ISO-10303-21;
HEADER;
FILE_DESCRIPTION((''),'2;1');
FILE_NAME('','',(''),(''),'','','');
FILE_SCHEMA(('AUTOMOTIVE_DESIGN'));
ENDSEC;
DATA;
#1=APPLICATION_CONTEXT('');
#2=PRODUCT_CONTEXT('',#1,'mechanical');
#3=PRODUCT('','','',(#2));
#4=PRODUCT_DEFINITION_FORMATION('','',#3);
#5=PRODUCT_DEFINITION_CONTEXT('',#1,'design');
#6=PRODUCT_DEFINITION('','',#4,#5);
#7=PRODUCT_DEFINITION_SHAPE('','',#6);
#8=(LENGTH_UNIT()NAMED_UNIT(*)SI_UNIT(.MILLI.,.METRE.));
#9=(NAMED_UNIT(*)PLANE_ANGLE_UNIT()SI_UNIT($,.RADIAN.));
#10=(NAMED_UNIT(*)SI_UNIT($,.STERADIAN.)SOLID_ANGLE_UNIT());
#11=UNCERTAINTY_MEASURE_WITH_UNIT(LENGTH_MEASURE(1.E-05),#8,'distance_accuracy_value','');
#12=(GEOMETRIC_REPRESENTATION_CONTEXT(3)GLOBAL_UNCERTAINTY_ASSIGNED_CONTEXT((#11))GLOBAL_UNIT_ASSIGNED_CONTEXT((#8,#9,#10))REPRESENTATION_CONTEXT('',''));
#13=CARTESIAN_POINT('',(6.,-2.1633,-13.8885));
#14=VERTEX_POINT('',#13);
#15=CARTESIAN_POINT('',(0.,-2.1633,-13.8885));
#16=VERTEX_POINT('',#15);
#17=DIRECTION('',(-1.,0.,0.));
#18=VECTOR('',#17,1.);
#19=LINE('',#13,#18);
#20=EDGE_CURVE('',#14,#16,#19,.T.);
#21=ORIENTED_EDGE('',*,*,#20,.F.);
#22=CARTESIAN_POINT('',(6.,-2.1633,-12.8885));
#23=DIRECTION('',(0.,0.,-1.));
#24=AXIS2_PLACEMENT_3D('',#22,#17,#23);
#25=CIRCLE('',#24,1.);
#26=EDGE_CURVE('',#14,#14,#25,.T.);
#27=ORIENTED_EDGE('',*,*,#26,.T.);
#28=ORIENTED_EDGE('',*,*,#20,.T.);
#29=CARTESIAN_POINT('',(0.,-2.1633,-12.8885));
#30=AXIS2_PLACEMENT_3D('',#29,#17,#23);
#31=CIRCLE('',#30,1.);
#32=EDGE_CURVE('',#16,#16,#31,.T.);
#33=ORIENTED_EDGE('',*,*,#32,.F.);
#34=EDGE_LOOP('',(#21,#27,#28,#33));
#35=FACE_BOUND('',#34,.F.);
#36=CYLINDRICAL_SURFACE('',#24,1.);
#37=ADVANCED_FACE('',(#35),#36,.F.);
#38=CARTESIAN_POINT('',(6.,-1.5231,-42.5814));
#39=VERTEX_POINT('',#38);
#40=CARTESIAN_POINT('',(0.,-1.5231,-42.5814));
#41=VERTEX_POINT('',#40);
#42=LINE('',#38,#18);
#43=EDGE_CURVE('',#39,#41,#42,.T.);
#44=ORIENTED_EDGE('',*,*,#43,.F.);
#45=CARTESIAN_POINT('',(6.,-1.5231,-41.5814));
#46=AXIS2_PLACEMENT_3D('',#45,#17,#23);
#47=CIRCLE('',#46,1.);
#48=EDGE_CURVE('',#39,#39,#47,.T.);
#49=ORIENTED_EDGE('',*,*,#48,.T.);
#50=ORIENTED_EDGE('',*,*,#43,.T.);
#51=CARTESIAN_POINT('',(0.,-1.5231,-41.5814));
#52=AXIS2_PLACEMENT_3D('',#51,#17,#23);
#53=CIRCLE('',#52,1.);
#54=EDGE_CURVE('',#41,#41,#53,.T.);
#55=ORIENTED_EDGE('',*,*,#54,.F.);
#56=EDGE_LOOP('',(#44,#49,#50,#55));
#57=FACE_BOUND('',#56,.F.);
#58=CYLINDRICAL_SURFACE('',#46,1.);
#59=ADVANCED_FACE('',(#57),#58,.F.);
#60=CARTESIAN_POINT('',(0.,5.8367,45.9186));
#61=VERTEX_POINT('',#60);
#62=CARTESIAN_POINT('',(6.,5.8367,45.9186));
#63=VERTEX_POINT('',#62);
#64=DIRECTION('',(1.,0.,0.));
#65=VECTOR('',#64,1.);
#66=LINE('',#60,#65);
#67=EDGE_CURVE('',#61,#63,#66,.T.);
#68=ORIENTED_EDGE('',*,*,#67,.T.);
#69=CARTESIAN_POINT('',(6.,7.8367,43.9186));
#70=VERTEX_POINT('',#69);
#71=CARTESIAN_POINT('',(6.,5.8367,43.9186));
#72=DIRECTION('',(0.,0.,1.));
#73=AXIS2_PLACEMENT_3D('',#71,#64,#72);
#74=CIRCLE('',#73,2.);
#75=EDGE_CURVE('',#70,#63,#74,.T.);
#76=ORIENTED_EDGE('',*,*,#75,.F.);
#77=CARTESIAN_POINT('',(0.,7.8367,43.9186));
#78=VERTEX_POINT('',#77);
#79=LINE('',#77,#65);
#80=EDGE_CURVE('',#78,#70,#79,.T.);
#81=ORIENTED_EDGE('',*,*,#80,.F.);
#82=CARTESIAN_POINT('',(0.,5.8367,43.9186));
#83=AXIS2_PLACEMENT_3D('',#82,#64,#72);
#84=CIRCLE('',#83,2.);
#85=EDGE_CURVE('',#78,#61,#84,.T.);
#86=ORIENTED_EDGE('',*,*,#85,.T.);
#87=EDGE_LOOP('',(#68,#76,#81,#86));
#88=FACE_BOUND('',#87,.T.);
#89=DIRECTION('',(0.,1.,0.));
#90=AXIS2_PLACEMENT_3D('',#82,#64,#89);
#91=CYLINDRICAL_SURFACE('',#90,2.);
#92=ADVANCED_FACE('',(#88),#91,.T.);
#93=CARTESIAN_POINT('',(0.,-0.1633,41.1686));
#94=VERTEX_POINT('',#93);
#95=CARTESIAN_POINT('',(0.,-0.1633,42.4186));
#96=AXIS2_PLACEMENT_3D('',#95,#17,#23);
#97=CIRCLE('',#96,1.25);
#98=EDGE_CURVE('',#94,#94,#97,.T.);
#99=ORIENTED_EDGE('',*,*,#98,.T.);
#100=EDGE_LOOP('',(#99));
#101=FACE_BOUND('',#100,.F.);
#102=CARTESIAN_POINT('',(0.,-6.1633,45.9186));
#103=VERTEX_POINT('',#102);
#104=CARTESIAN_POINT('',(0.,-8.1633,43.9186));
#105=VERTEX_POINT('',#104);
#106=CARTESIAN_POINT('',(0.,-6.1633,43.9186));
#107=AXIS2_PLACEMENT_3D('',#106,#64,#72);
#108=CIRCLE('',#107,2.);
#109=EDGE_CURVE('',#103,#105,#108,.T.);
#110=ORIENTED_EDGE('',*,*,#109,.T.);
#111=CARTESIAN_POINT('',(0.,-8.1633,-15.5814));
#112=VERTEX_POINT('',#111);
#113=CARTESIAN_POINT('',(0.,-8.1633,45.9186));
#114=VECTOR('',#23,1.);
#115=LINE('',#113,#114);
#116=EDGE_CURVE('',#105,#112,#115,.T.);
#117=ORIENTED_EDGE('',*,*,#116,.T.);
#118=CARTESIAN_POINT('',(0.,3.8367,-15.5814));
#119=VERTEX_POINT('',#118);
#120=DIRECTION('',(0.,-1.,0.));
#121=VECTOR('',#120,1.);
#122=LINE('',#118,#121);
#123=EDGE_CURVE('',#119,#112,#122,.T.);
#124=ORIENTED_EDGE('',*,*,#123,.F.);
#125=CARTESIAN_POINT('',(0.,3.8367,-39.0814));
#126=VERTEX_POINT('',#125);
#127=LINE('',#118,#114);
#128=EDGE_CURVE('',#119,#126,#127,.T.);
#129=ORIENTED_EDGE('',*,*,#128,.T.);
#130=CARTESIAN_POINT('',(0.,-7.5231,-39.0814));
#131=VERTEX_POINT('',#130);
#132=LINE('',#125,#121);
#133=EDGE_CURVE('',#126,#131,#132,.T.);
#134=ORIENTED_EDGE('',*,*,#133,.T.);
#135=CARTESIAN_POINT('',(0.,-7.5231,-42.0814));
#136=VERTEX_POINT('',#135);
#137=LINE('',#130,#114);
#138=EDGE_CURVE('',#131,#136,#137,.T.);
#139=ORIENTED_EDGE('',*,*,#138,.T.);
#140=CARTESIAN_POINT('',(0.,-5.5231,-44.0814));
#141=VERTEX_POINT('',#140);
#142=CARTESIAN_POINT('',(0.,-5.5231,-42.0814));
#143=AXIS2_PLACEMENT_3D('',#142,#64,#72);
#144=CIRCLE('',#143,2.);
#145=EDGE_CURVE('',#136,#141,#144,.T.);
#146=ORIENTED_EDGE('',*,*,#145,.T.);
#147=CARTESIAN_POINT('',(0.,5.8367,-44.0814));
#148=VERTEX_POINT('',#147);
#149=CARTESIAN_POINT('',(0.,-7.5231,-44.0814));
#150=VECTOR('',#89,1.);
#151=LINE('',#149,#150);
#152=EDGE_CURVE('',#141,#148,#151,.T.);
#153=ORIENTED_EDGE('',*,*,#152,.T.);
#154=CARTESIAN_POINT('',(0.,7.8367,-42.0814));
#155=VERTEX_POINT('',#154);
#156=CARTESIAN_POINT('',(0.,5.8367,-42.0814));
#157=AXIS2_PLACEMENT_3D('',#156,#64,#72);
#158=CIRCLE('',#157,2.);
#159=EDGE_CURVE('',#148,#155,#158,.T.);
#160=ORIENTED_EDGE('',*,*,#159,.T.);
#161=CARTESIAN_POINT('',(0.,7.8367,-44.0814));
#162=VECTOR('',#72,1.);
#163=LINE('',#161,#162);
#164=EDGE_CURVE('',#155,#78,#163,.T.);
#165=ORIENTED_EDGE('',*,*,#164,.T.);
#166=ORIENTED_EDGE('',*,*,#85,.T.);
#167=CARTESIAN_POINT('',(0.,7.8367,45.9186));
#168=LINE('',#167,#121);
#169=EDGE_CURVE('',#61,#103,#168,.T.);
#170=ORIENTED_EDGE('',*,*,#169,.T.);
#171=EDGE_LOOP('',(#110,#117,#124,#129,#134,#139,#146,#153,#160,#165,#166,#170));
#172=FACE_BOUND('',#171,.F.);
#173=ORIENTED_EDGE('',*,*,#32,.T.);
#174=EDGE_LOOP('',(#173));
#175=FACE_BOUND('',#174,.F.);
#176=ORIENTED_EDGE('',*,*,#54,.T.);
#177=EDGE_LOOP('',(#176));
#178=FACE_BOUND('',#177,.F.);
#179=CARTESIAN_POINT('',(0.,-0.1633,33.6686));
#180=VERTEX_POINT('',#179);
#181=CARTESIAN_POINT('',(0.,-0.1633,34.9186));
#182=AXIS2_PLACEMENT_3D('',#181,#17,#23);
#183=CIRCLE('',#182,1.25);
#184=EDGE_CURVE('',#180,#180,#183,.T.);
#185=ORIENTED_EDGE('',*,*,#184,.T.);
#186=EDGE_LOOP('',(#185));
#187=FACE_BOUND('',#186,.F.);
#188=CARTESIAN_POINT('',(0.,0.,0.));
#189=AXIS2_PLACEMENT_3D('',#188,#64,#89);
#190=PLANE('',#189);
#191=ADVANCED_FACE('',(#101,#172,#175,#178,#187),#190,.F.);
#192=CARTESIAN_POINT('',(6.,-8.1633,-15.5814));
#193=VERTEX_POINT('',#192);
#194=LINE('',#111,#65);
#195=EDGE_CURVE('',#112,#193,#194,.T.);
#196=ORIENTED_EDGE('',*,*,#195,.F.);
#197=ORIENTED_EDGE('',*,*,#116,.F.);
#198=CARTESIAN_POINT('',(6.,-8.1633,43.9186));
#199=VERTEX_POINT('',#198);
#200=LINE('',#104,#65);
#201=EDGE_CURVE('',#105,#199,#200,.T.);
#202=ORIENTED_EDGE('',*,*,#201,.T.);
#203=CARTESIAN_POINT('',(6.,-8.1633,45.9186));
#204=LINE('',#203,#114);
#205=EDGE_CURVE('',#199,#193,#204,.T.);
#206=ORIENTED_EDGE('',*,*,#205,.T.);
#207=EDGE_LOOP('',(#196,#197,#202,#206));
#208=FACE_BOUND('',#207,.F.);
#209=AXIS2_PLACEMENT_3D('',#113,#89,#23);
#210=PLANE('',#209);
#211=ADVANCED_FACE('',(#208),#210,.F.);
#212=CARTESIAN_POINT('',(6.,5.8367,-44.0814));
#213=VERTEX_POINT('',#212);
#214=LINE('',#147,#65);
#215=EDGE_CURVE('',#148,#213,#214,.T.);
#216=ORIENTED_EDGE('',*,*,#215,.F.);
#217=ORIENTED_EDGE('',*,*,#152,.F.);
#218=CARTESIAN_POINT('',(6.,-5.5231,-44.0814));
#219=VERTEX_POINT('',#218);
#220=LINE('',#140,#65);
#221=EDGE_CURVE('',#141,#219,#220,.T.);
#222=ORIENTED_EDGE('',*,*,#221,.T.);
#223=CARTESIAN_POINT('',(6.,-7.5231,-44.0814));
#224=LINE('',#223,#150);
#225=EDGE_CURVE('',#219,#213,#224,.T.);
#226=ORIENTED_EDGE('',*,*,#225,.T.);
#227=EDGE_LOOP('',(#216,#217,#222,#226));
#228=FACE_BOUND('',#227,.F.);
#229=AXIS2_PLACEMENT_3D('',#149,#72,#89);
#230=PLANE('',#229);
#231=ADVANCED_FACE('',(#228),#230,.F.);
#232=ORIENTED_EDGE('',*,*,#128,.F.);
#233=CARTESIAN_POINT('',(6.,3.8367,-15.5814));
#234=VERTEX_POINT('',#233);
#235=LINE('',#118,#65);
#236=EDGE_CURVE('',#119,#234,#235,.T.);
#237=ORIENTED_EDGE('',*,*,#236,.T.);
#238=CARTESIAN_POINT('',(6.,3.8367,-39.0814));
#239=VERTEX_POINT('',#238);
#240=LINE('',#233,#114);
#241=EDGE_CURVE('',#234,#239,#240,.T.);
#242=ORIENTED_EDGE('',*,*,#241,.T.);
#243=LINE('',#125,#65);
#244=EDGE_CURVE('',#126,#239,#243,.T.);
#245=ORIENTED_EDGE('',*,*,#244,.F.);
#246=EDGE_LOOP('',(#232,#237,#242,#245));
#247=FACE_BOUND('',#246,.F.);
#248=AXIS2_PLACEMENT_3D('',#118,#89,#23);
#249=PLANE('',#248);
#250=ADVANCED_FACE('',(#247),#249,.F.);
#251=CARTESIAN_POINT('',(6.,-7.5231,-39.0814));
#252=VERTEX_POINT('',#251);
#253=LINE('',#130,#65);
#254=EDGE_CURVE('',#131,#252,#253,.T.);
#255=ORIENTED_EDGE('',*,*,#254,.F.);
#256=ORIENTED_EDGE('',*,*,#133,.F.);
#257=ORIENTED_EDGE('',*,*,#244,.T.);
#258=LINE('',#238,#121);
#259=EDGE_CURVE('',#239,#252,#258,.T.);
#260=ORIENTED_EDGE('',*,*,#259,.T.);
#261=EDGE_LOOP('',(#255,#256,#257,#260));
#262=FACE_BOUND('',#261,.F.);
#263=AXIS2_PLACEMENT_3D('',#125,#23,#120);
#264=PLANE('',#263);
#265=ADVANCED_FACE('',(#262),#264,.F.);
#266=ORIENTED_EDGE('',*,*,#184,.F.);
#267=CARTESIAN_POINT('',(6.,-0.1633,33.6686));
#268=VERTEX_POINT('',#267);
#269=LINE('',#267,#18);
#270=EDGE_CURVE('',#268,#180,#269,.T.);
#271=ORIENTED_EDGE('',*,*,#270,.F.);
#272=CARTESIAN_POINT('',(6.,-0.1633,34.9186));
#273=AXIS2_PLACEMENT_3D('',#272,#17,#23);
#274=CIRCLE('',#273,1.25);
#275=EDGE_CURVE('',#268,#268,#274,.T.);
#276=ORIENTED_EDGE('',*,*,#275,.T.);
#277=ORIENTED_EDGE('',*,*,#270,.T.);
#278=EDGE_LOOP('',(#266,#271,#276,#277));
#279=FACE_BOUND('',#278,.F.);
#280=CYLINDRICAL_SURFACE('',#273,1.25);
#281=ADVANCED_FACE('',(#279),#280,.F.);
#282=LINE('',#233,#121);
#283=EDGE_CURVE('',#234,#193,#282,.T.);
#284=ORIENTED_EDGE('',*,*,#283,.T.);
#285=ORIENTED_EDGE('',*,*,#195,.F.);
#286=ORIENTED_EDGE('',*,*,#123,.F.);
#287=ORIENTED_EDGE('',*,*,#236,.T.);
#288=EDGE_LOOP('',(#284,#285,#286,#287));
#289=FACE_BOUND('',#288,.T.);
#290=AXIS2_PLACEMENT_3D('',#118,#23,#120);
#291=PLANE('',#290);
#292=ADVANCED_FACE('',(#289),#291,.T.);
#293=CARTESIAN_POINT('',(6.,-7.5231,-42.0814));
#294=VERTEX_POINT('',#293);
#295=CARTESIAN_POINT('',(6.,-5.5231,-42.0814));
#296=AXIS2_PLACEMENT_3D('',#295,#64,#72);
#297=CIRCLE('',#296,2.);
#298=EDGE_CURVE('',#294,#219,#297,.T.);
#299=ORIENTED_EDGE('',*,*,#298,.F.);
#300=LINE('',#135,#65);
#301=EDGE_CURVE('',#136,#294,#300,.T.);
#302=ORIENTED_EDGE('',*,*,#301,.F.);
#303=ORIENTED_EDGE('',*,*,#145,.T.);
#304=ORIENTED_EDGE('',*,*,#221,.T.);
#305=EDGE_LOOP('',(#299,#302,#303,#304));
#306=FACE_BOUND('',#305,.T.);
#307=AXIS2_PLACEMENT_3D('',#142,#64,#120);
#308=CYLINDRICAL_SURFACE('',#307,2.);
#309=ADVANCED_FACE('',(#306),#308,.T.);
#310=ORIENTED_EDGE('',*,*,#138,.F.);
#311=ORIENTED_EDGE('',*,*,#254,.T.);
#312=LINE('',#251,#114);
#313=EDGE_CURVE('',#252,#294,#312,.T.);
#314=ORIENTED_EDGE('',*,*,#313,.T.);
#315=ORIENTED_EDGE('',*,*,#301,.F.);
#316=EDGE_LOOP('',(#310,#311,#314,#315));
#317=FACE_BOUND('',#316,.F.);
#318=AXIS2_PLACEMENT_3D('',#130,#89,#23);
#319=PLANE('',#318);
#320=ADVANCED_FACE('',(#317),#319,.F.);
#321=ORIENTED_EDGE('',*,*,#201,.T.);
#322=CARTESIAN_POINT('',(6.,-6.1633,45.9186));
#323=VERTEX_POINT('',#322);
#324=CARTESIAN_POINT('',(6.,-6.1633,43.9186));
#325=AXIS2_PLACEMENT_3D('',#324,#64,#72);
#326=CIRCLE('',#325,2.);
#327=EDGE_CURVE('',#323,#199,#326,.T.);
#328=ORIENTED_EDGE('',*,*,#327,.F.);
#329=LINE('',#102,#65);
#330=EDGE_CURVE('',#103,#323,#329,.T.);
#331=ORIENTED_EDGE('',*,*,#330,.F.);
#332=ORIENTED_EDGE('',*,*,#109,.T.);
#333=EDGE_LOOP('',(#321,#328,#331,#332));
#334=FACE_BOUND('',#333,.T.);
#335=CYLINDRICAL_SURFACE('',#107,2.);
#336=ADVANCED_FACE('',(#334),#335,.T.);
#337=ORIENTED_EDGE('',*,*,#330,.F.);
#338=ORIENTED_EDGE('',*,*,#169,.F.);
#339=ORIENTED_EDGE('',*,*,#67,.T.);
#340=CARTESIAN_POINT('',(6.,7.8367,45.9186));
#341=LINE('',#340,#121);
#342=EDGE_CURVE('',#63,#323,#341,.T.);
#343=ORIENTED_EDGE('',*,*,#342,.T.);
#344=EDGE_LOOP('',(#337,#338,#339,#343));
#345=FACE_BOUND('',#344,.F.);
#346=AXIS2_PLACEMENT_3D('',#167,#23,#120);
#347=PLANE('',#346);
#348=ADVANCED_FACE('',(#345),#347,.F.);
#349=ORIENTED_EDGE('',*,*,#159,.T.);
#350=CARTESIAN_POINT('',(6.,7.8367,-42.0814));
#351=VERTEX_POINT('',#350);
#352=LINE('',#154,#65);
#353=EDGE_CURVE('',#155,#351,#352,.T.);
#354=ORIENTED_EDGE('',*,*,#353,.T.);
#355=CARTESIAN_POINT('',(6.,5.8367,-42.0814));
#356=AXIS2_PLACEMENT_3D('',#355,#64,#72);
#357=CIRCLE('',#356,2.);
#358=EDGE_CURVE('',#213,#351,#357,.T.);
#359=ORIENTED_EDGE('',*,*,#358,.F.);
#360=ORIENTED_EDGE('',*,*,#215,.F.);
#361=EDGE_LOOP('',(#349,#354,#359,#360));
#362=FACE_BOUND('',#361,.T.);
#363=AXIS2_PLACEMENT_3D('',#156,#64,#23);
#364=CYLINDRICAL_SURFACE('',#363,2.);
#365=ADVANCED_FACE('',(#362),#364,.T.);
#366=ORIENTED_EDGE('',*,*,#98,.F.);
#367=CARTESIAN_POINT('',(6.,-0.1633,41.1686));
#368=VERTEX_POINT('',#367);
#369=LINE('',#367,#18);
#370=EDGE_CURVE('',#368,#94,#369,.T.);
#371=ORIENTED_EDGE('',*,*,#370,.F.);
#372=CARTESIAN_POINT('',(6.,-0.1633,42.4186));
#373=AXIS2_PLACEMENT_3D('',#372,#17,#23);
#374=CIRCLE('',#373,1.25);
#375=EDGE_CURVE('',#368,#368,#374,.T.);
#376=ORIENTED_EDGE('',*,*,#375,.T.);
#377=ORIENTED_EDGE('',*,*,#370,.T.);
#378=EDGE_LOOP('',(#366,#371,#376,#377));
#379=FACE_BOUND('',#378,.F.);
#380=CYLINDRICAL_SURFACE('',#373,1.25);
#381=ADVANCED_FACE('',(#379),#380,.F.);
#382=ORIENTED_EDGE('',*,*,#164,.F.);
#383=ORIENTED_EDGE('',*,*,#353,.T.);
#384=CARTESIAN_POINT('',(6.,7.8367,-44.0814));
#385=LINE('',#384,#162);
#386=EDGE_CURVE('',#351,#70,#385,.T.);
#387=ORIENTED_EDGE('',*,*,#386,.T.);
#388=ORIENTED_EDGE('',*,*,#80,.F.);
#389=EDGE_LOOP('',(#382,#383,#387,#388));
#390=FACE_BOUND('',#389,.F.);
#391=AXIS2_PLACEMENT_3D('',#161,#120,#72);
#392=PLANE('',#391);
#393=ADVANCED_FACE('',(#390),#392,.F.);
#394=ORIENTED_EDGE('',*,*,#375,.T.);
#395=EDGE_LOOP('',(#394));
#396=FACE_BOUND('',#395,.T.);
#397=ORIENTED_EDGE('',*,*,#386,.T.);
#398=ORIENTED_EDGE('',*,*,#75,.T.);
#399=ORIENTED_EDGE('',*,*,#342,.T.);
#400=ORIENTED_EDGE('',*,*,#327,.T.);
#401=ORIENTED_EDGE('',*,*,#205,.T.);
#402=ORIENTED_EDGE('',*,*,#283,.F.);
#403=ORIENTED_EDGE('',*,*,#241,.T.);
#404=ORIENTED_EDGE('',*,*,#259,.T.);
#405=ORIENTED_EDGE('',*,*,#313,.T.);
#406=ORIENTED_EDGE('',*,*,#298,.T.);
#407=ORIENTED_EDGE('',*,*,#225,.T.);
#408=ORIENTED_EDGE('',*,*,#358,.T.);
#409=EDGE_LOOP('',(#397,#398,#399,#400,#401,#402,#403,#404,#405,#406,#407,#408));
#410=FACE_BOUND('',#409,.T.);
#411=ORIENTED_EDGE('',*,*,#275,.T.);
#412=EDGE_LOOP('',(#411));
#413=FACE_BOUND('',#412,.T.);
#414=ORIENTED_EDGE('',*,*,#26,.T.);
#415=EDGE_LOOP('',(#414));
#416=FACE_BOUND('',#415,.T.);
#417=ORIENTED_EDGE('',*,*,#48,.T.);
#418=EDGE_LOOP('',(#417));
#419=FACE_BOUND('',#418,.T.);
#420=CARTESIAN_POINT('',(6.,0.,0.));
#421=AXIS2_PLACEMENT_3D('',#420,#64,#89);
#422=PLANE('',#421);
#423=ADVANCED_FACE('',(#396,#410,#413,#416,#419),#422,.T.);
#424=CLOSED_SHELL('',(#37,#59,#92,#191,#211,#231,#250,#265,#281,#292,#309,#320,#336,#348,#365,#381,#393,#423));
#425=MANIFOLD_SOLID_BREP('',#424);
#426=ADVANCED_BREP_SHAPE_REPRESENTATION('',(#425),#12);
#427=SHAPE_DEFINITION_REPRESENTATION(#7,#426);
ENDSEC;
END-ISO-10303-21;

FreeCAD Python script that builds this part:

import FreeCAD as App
import Part
import Sketcher


def edges_at(feature, points):
    """Names of the edges that pass closest to the given points."""
    edges = feature.Shape.Edges
    near = lambda p: min(range(len(edges)), key=lambda i: edges[i].distToShape(Part.Vertex(*p))[0])
    return sorted({f"Edge{near(p) + 1}" for p in points})


def add_polygon(sketch, points):
    """Adds a closed chain of lines whose ends are joined by coincident constraints."""
    first, n = sketch.GeometryCount, len(points)
    for a, b in zip(points, points[1:] + points[:1]):
        sketch.addGeometry(Part.LineSegment(App.Vector(*a, 0), App.Vector(*b, 0)), False)
    for i in range(n):
        sketch.addConstraint(Sketcher.Constraint("Coincident", first + i, 2, first + (i + 1) % n, 1))

doc = App.newDocument("Part")
body = doc.addObject("PartDesign::Body", "Body")

sketch1 = body.newObject("Sketcher::SketchObject", "Sketch")
sketch1.AttachmentSupport = (doc.getObject("YZ_Plane"), [""])
sketch1.MapMode = "FlatFace"
add_polygon(sketch1, [(-8, -39), (-8, -44), (8, -44), (8, 46), (-8, 46), (-8, -16), (4, -16), (4, -39)])
sketch1.addConstraint([
    Sketcher.Constraint("Vertical", 0),
    Sketcher.Constraint("Horizontal", 1),
    Sketcher.Constraint("Vertical", 2),
    Sketcher.Constraint("Horizontal", 3),
    Sketcher.Constraint("Vertical", 4),
    Sketcher.Constraint("Horizontal", 5),
    Sketcher.Constraint("Vertical", 6),
    Sketcher.Constraint("Horizontal", 7),
    Sketcher.Constraint("DistanceX", 3, 2, 3, 1, 16.0),
    Sketcher.Constraint("DistanceX", 5, 1, 5, 2, 12.0),
    Sketcher.Constraint("DistanceY", 0, 2, 0, 1, 5.0),
    Sketcher.Constraint("DistanceY", 2, 1, 2, 2, 90.0),
    Sketcher.Constraint("DistanceY", 6, 2, 6, 1, 23.5),
    Sketcher.Constraint("DistanceX", 1, 1, 1, 2, 15.3598),
    Sketcher.Constraint("DistanceX", 0, 2, -1, 1, 7.523),
    Sketcher.Constraint("DistanceY", 0, 2, -1, 1, 44.0814),
])
pad1 = body.newObject("PartDesign::Pad", "Pad")
pad1.Profile = sketch1
pad1.Length = 6

sketch2 = body.newObject("Sketcher::SketchObject", "Sketch001")
sketch2.AttachmentSupport = (doc.getObject("YZ_Plane"), [""])
sketch2.MapMode = "FlatFace"
sketch2.AttachmentOffset = App.Placement(App.Vector(0, 0, 6), App.Rotation())
sketch2.addGeometry([
    Part.Circle(App.Vector(-0.2, 34.9, 0), App.Vector(0, 0, 1), 1.2),
    Part.Circle(App.Vector(-0.2, 42.4, 0), App.Vector(0, 0, 1), 1.2),
], False)
sketch2.addConstraint([
    Sketcher.Constraint("Equal", 0, 1),
    Sketcher.Constraint("Vertical", 0, 3, 1, 3),
    Sketcher.Constraint("Diameter", 0, 2.5),
    Sketcher.Constraint("DistanceY", 0, 3, 1, 3, 7.5),
    Sketcher.Constraint("DistanceX", 0, 3, -1, 1, 0.1633),
    Sketcher.Constraint("DistanceY", -1, 1, 0, 3, 34.9186),
])
doc.recompute()
hole = body.newObject("PartDesign::Hole", "Hole")
hole.Profile = sketch2
hole.ThreadType = "None"
hole.Diameter = 2.5
hole.DepthType = "ThroughAll"
doc.recompute()

fillet = body.newObject("PartDesign::Fillet", "Fillet")
fillet.Base = (hole, edges_at(hole, [
    (3, 7.837, 45.919),
    (3, -8.163, 45.919),
    (3, 7.837, -44.081),
    (3, -7.523, -44.081),
]))
fillet.Radius = 2

sketch3 = body.newObject("Sketcher::SketchObject", "Sketch002")
sketch3.AttachmentSupport = (doc.getObject("YZ_Plane"), [""])
sketch3.MapMode = "FlatFace"
sketch3.AttachmentOffset = App.Placement(App.Vector(0, 0, 6), App.Rotation())
sketch3.addGeometry([
    Part.Circle(App.Vector(-2.2, -12.9, 0), App.Vector(0, 0, 1), 1),
    Part.Circle(App.Vector(-1.5, -41.6, 0), App.Vector(0, 0, 1), 1),
], False)
sketch3.addConstraint([
    Sketcher.Constraint("Equal", 0, 1),
    Sketcher.Constraint("Diameter", 0, 2.0),
    Sketcher.Constraint("DistanceX", 1, 3, -1, 1, 1.523),
    Sketcher.Constraint("DistanceY", 1, 3, 0, 3, 28.693),
    Sketcher.Constraint("DistanceX", 0, 3, -1, 1, 2.1633),
    Sketcher.Constraint("DistanceY", 0, 3, -1, 1, 12.8885),
])
doc.recompute()
hole2 = body.newObject("PartDesign::Hole", "Hole001")
hole2.Profile = sketch3
hole2.ThreadType = "None"
hole2.Diameter = 2
hole2.DepthType = "ThroughAll"

doc.recompute()
